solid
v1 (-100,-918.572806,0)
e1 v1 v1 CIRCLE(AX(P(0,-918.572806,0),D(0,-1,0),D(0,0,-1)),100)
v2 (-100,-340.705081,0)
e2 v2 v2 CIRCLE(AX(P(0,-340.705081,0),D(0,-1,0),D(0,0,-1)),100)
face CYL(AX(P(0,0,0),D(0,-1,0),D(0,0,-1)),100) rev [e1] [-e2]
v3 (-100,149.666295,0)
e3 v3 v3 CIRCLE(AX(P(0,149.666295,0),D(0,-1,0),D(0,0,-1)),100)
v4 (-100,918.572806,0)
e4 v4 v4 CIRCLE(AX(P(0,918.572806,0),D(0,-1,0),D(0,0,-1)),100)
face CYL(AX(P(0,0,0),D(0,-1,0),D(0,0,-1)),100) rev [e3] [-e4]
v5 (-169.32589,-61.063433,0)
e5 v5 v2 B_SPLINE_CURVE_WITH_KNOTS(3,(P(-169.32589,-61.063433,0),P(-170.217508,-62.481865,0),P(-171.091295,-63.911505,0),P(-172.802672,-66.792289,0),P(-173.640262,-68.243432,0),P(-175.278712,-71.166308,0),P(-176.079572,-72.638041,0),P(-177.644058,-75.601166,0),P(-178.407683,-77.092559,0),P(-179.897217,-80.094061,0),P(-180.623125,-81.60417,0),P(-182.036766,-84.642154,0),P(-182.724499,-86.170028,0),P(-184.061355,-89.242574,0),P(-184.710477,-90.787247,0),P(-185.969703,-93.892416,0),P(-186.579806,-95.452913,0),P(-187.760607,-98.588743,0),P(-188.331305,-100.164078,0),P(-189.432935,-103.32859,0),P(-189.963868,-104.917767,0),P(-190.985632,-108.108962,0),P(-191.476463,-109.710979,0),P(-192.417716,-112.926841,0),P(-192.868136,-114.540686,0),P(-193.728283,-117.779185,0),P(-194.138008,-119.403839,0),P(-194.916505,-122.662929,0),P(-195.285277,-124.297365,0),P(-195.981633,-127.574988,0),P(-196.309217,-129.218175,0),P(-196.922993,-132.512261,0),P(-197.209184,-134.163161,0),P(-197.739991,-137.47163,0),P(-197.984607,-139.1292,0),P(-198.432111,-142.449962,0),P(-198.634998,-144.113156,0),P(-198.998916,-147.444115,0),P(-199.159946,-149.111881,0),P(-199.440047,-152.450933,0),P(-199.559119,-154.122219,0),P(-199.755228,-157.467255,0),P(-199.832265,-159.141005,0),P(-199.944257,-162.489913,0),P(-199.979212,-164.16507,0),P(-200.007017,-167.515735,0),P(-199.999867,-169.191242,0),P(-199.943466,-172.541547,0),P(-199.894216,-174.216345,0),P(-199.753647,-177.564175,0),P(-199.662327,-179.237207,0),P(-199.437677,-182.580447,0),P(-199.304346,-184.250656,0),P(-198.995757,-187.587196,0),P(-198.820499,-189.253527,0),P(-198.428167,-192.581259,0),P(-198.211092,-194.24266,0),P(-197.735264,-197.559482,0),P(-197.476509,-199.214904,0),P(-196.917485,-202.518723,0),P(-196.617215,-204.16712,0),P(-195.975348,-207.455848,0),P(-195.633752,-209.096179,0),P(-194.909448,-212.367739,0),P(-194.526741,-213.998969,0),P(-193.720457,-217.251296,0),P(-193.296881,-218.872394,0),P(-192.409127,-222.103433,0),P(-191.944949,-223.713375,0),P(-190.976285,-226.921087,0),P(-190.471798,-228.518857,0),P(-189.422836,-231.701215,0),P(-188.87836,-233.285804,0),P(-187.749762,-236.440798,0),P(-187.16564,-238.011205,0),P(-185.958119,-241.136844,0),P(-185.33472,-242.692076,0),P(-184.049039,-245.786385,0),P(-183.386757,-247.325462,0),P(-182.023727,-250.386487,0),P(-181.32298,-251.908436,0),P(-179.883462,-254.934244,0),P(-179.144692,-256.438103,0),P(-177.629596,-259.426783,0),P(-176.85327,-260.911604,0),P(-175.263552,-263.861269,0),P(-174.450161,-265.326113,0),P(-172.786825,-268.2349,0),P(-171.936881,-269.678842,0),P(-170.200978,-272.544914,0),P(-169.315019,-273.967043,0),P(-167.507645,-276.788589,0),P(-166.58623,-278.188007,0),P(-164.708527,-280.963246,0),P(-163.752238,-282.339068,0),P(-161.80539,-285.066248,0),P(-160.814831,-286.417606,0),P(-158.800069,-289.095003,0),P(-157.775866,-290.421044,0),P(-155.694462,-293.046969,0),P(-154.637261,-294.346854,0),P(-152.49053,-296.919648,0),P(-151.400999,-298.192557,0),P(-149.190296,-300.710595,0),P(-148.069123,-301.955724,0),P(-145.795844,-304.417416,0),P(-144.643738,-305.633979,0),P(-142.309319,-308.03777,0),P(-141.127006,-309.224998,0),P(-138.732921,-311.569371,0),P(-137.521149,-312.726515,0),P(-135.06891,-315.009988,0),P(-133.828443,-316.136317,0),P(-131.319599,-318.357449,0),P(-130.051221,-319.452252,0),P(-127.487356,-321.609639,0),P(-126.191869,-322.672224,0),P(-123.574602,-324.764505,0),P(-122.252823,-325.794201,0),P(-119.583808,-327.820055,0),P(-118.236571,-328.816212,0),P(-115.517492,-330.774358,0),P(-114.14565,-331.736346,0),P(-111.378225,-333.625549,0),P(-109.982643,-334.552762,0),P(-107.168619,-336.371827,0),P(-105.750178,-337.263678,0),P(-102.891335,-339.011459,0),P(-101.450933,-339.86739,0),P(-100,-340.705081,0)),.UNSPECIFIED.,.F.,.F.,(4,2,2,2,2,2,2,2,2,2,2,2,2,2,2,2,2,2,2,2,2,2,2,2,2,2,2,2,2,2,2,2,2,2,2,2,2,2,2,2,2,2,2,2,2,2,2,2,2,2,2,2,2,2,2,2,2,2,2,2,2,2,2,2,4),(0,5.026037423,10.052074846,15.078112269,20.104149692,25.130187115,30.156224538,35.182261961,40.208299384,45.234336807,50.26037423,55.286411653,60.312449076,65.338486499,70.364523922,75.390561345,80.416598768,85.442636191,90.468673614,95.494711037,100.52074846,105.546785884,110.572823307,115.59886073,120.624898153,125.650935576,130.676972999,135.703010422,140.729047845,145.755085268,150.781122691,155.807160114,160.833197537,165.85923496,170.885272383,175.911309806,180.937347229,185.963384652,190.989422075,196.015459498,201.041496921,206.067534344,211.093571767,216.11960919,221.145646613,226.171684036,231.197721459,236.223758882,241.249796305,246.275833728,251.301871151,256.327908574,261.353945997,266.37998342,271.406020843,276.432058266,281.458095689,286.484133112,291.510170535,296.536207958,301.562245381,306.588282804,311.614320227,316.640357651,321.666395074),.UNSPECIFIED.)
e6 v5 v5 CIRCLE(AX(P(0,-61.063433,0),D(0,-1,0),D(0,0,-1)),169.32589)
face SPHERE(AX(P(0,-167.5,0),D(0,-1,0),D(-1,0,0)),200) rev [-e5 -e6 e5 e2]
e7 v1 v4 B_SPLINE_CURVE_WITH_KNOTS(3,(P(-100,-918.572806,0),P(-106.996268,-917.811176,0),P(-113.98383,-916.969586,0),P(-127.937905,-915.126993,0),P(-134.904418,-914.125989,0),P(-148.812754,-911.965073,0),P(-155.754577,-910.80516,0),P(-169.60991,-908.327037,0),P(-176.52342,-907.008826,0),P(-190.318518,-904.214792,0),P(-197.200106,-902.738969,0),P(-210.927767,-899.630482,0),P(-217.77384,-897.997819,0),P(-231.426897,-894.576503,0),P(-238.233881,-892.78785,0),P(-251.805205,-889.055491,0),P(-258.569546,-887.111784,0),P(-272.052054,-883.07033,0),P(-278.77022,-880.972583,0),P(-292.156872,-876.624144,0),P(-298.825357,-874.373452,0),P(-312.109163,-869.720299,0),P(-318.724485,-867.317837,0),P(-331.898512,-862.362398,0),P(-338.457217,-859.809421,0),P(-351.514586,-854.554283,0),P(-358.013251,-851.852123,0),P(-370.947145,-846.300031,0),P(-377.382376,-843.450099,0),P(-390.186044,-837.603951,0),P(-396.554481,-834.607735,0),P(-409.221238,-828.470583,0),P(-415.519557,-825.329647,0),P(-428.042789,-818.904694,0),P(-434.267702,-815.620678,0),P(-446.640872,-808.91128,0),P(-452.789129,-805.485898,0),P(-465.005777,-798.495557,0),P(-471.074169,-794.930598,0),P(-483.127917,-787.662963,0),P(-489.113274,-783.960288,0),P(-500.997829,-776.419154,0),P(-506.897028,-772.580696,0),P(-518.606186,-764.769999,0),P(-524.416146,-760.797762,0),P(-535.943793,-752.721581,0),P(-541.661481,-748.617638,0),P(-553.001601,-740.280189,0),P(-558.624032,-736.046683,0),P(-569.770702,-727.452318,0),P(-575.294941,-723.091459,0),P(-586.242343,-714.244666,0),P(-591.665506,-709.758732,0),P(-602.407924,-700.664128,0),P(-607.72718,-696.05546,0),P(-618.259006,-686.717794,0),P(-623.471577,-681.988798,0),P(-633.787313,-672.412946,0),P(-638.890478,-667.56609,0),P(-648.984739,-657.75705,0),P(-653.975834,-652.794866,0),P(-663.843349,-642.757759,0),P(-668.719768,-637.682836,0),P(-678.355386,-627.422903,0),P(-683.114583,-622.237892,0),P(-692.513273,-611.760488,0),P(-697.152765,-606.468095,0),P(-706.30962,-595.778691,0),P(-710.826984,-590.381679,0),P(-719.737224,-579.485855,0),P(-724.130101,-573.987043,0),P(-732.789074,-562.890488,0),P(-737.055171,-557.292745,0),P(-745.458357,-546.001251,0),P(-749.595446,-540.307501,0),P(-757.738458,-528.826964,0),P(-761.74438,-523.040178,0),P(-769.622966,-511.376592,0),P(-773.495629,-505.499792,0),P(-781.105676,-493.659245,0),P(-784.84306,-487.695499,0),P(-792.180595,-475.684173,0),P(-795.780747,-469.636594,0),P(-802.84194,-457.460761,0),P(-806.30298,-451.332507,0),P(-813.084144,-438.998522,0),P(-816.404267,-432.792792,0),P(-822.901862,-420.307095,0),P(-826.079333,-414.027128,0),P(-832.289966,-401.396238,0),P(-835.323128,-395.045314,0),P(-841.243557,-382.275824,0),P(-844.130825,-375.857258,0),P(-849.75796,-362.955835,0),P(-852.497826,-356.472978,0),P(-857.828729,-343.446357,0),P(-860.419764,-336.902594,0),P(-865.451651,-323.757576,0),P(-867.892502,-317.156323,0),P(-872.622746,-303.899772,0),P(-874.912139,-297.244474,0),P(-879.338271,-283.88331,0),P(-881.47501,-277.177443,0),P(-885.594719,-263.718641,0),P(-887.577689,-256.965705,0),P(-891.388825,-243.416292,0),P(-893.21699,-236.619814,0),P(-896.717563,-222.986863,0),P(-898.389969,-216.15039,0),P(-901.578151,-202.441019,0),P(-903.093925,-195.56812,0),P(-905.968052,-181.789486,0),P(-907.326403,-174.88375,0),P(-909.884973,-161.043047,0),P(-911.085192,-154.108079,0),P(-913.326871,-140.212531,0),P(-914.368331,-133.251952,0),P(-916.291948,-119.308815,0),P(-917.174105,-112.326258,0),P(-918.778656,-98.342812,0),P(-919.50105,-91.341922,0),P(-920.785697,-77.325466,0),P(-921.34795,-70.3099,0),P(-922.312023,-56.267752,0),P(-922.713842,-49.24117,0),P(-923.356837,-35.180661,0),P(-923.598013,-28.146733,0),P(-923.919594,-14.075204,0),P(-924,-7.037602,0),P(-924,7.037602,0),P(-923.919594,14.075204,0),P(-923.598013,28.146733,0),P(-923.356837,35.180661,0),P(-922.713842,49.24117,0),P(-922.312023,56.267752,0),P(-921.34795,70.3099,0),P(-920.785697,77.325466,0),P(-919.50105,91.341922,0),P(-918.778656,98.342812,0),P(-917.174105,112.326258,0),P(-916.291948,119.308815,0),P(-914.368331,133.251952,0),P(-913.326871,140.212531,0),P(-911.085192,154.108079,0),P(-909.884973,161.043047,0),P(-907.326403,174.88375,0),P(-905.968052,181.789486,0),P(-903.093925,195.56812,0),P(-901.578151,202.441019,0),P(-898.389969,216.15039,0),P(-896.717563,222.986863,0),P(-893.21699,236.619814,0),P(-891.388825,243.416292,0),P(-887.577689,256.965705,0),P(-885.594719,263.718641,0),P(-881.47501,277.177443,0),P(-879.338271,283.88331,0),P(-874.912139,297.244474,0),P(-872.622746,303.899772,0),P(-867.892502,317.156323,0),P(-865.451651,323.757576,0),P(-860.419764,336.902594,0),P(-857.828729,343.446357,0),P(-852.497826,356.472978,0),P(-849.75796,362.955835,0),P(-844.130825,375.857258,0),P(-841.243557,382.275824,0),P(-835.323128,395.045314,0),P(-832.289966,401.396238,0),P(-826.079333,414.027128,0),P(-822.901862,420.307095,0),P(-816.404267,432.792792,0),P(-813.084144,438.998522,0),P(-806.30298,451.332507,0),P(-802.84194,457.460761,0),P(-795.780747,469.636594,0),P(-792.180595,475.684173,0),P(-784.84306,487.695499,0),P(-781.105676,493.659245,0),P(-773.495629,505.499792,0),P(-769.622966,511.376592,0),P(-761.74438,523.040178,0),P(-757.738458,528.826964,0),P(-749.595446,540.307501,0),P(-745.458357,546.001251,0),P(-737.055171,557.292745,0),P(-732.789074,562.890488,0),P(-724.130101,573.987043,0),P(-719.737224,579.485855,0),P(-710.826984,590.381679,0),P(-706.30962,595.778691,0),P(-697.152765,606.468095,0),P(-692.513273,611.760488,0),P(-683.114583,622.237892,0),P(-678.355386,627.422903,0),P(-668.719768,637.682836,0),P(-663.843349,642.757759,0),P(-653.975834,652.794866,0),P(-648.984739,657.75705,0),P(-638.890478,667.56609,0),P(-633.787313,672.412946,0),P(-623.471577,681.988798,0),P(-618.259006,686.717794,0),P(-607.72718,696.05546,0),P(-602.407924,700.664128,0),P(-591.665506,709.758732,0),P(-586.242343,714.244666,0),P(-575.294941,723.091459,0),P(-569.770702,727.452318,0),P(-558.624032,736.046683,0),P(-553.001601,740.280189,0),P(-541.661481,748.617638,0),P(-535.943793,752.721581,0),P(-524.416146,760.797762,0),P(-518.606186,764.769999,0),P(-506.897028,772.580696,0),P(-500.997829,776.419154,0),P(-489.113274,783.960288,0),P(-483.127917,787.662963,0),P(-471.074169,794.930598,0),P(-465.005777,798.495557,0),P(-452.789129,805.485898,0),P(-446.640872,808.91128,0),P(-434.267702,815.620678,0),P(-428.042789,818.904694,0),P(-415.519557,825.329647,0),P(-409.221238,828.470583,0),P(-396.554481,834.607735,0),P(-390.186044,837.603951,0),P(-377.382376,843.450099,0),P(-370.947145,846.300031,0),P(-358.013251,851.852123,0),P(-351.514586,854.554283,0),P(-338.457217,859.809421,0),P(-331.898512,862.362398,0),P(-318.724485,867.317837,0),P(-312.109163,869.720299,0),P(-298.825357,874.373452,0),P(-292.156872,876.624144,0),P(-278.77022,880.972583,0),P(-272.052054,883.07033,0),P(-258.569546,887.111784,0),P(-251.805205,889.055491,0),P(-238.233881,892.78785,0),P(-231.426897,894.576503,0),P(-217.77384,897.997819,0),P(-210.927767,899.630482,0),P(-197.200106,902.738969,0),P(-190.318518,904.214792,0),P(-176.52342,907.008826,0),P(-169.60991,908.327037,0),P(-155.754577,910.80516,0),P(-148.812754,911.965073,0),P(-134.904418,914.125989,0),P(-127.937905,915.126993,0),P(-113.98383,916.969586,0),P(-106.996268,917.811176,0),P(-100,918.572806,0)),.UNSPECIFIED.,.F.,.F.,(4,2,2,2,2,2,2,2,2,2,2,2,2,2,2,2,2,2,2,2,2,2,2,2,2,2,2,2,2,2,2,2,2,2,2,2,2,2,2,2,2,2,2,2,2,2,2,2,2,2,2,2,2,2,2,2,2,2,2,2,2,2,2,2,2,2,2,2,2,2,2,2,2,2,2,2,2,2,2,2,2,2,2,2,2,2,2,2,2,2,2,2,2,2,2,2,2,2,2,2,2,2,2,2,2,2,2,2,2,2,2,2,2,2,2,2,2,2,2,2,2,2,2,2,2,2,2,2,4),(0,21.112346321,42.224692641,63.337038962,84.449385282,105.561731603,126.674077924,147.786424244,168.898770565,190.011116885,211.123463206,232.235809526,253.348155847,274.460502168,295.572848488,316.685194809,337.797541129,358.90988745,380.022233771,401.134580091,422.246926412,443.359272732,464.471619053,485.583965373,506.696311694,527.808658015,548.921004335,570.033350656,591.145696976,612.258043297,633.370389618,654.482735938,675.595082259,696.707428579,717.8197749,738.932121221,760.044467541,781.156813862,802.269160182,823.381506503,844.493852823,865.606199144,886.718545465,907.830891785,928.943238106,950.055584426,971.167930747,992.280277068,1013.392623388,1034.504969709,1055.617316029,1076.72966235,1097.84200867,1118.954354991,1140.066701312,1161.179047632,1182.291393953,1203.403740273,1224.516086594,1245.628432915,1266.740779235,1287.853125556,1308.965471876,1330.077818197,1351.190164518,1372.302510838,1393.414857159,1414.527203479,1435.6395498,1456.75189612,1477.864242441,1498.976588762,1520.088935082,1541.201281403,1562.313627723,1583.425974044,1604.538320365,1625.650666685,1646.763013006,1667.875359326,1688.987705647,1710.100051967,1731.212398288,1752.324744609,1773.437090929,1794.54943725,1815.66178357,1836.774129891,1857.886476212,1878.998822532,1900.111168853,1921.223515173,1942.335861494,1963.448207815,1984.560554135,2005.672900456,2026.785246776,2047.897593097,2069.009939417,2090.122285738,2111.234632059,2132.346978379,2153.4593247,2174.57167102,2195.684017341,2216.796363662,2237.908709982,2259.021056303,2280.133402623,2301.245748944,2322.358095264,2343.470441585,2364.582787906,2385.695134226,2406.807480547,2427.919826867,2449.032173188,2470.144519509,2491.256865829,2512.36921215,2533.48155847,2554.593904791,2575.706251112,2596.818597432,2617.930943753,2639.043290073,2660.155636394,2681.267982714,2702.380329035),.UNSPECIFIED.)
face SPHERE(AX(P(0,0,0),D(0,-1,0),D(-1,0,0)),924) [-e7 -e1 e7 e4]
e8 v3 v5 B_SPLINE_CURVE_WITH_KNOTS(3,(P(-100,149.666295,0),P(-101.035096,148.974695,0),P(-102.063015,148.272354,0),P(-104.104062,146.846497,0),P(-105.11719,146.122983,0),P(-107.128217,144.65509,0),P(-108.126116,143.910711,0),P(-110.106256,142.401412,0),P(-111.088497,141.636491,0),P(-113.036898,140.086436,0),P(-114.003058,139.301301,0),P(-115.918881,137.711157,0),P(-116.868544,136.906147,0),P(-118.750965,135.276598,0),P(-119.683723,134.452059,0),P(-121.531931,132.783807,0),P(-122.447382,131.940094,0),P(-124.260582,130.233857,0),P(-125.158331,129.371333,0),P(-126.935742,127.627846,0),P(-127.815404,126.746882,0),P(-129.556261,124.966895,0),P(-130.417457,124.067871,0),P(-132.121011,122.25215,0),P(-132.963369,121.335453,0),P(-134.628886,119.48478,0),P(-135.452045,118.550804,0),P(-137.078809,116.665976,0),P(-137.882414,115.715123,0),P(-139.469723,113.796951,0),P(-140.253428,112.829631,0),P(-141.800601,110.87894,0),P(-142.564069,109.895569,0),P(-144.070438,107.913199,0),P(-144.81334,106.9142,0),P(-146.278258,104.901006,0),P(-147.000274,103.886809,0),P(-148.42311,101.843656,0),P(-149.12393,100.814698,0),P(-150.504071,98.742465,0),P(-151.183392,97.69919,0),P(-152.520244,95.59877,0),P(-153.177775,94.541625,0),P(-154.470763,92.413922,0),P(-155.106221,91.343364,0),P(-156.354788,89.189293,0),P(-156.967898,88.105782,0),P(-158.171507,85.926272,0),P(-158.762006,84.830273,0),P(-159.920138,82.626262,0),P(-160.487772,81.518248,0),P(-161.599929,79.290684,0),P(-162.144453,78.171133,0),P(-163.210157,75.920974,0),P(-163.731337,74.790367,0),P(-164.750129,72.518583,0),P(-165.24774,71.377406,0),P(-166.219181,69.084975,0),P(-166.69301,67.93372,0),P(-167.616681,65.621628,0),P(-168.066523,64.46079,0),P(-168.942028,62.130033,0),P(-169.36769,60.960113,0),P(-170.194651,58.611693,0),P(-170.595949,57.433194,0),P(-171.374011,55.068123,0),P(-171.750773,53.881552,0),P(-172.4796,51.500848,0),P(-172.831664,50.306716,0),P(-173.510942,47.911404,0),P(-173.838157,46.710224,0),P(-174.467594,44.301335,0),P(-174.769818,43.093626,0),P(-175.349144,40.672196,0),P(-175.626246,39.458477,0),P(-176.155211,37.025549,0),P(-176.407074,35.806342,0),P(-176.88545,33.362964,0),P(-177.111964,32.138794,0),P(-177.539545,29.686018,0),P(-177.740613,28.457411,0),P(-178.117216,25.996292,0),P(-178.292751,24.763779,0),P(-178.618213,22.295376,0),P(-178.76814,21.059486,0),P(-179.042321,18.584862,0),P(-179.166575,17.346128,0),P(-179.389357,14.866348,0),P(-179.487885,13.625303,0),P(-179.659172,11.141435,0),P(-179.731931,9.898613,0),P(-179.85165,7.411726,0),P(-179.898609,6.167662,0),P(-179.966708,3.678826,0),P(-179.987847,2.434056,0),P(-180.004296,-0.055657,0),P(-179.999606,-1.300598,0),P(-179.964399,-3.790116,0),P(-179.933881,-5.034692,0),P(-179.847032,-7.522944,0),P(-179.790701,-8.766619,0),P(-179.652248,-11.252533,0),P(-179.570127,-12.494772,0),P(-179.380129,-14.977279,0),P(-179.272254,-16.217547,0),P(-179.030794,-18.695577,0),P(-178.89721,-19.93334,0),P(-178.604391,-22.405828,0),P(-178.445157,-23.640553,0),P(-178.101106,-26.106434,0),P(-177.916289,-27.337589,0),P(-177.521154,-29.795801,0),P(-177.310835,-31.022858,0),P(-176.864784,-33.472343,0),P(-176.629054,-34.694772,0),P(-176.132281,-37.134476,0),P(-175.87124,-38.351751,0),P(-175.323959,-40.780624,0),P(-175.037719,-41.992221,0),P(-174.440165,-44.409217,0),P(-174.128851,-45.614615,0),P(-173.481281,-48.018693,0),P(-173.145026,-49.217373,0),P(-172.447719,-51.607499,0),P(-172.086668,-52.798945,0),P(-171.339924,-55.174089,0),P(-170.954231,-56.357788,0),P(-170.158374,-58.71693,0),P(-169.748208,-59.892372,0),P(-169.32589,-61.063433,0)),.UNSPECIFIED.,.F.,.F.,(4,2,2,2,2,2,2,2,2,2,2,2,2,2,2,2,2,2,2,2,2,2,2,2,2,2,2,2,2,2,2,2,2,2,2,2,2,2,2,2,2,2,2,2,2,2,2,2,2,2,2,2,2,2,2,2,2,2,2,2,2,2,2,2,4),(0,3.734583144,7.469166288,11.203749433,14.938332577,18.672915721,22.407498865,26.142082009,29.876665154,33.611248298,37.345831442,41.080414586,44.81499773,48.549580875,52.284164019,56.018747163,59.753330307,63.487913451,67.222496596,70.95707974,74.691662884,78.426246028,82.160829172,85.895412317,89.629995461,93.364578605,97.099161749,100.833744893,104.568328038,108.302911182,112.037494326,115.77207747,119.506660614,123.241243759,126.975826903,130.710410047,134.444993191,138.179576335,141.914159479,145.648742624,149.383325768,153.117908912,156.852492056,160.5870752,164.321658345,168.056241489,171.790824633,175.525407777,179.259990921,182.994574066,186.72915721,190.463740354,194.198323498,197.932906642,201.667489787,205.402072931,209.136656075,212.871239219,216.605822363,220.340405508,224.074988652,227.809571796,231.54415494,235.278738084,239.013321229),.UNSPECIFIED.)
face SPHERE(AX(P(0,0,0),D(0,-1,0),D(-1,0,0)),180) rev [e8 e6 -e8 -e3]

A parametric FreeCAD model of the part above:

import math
import FreeCAD as App
import Part
import Sketcher
from FreeCAD import Vector
Q = App.Units.Quantity

doc = App.newDocument("Part")
body = doc.addObject("PartDesign::Body", "Body")

# Sketch on XY plane
sketch1 = body.newObject("Sketcher::SketchObject", "Sketch")
sketch1.AttachmentSupport = (doc.getObject("XY_Plane"), [""])
sketch1.MapMode = "FlatFace"
sketch1.addGeometry([
    Part.LineSegment(Vector(-100, 150, 0), Vector(-100, 919, 0)),  # 0
    Part.ArcOfCircle(Part.Circle(Vector(0, 0, 0), Vector(0, 0, 1), 924), math.radians(96), math.radians(264)),  # 1
    Part.LineSegment(Vector(-100, -919, 0), Vector(-100, -341, 0)),  # 2
    Part.ArcOfCircle(Part.Circle(Vector(0, -168, 0), Vector(0, 0, 1), 200), math.radians(148), math.radians(240)),  # 3
    Part.ArcOfCircle(Part.Circle(Vector(0, 0, 0), Vector(0, 0, 1), 180), math.radians(124), math.radians(200)),  # 4
], False)
sketch1.addConstraint([
    Sketcher.Constraint("Coincident", 0, 2, 1, 1),
    Sketcher.Constraint("Coincident", 1, 2, 2, 1),
    Sketcher.Constraint("Coincident", 2, 2, 3, 2),
    Sketcher.Constraint("Coincident", 3, 1, 4, 2),
    Sketcher.Constraint("Coincident", 4, 1, 0, 1),
    Sketcher.Constraint("Vertical", 0),
    Sketcher.Constraint("Vertical", 2),
    Sketcher.Constraint("Coincident", 1, 3, -1, 1),
    Sketcher.Constraint("Coincident", 4, 3, -1, 1),
    Sketcher.Constraint("PointOnObject", 3, 3, -2),
    Sketcher.Constraint("Vertical", 2, 2, 4, 1),
    Sketcher.Constraint("Radius", 1, Q("924 mm")),
    Sketcher.Constraint("Radius", 3, Q("200 mm")),
    Sketcher.Constraint("Radius", 4, Q("180 mm")),
    Sketcher.Constraint("DistanceX", 0, 2, -1, 1, Q("100 mm")),
    Sketcher.Constraint("DistanceY", 3, 3, -1, 1, Q("167.5 mm")),
])
revolution = body.newObject("PartDesign::Revolution", "Revolution")
revolution.Profile = sketch1
revolution.ReferenceAxis = (sketch1, ["V_Axis"])
revolution.Angle = 360

doc.recompute()
